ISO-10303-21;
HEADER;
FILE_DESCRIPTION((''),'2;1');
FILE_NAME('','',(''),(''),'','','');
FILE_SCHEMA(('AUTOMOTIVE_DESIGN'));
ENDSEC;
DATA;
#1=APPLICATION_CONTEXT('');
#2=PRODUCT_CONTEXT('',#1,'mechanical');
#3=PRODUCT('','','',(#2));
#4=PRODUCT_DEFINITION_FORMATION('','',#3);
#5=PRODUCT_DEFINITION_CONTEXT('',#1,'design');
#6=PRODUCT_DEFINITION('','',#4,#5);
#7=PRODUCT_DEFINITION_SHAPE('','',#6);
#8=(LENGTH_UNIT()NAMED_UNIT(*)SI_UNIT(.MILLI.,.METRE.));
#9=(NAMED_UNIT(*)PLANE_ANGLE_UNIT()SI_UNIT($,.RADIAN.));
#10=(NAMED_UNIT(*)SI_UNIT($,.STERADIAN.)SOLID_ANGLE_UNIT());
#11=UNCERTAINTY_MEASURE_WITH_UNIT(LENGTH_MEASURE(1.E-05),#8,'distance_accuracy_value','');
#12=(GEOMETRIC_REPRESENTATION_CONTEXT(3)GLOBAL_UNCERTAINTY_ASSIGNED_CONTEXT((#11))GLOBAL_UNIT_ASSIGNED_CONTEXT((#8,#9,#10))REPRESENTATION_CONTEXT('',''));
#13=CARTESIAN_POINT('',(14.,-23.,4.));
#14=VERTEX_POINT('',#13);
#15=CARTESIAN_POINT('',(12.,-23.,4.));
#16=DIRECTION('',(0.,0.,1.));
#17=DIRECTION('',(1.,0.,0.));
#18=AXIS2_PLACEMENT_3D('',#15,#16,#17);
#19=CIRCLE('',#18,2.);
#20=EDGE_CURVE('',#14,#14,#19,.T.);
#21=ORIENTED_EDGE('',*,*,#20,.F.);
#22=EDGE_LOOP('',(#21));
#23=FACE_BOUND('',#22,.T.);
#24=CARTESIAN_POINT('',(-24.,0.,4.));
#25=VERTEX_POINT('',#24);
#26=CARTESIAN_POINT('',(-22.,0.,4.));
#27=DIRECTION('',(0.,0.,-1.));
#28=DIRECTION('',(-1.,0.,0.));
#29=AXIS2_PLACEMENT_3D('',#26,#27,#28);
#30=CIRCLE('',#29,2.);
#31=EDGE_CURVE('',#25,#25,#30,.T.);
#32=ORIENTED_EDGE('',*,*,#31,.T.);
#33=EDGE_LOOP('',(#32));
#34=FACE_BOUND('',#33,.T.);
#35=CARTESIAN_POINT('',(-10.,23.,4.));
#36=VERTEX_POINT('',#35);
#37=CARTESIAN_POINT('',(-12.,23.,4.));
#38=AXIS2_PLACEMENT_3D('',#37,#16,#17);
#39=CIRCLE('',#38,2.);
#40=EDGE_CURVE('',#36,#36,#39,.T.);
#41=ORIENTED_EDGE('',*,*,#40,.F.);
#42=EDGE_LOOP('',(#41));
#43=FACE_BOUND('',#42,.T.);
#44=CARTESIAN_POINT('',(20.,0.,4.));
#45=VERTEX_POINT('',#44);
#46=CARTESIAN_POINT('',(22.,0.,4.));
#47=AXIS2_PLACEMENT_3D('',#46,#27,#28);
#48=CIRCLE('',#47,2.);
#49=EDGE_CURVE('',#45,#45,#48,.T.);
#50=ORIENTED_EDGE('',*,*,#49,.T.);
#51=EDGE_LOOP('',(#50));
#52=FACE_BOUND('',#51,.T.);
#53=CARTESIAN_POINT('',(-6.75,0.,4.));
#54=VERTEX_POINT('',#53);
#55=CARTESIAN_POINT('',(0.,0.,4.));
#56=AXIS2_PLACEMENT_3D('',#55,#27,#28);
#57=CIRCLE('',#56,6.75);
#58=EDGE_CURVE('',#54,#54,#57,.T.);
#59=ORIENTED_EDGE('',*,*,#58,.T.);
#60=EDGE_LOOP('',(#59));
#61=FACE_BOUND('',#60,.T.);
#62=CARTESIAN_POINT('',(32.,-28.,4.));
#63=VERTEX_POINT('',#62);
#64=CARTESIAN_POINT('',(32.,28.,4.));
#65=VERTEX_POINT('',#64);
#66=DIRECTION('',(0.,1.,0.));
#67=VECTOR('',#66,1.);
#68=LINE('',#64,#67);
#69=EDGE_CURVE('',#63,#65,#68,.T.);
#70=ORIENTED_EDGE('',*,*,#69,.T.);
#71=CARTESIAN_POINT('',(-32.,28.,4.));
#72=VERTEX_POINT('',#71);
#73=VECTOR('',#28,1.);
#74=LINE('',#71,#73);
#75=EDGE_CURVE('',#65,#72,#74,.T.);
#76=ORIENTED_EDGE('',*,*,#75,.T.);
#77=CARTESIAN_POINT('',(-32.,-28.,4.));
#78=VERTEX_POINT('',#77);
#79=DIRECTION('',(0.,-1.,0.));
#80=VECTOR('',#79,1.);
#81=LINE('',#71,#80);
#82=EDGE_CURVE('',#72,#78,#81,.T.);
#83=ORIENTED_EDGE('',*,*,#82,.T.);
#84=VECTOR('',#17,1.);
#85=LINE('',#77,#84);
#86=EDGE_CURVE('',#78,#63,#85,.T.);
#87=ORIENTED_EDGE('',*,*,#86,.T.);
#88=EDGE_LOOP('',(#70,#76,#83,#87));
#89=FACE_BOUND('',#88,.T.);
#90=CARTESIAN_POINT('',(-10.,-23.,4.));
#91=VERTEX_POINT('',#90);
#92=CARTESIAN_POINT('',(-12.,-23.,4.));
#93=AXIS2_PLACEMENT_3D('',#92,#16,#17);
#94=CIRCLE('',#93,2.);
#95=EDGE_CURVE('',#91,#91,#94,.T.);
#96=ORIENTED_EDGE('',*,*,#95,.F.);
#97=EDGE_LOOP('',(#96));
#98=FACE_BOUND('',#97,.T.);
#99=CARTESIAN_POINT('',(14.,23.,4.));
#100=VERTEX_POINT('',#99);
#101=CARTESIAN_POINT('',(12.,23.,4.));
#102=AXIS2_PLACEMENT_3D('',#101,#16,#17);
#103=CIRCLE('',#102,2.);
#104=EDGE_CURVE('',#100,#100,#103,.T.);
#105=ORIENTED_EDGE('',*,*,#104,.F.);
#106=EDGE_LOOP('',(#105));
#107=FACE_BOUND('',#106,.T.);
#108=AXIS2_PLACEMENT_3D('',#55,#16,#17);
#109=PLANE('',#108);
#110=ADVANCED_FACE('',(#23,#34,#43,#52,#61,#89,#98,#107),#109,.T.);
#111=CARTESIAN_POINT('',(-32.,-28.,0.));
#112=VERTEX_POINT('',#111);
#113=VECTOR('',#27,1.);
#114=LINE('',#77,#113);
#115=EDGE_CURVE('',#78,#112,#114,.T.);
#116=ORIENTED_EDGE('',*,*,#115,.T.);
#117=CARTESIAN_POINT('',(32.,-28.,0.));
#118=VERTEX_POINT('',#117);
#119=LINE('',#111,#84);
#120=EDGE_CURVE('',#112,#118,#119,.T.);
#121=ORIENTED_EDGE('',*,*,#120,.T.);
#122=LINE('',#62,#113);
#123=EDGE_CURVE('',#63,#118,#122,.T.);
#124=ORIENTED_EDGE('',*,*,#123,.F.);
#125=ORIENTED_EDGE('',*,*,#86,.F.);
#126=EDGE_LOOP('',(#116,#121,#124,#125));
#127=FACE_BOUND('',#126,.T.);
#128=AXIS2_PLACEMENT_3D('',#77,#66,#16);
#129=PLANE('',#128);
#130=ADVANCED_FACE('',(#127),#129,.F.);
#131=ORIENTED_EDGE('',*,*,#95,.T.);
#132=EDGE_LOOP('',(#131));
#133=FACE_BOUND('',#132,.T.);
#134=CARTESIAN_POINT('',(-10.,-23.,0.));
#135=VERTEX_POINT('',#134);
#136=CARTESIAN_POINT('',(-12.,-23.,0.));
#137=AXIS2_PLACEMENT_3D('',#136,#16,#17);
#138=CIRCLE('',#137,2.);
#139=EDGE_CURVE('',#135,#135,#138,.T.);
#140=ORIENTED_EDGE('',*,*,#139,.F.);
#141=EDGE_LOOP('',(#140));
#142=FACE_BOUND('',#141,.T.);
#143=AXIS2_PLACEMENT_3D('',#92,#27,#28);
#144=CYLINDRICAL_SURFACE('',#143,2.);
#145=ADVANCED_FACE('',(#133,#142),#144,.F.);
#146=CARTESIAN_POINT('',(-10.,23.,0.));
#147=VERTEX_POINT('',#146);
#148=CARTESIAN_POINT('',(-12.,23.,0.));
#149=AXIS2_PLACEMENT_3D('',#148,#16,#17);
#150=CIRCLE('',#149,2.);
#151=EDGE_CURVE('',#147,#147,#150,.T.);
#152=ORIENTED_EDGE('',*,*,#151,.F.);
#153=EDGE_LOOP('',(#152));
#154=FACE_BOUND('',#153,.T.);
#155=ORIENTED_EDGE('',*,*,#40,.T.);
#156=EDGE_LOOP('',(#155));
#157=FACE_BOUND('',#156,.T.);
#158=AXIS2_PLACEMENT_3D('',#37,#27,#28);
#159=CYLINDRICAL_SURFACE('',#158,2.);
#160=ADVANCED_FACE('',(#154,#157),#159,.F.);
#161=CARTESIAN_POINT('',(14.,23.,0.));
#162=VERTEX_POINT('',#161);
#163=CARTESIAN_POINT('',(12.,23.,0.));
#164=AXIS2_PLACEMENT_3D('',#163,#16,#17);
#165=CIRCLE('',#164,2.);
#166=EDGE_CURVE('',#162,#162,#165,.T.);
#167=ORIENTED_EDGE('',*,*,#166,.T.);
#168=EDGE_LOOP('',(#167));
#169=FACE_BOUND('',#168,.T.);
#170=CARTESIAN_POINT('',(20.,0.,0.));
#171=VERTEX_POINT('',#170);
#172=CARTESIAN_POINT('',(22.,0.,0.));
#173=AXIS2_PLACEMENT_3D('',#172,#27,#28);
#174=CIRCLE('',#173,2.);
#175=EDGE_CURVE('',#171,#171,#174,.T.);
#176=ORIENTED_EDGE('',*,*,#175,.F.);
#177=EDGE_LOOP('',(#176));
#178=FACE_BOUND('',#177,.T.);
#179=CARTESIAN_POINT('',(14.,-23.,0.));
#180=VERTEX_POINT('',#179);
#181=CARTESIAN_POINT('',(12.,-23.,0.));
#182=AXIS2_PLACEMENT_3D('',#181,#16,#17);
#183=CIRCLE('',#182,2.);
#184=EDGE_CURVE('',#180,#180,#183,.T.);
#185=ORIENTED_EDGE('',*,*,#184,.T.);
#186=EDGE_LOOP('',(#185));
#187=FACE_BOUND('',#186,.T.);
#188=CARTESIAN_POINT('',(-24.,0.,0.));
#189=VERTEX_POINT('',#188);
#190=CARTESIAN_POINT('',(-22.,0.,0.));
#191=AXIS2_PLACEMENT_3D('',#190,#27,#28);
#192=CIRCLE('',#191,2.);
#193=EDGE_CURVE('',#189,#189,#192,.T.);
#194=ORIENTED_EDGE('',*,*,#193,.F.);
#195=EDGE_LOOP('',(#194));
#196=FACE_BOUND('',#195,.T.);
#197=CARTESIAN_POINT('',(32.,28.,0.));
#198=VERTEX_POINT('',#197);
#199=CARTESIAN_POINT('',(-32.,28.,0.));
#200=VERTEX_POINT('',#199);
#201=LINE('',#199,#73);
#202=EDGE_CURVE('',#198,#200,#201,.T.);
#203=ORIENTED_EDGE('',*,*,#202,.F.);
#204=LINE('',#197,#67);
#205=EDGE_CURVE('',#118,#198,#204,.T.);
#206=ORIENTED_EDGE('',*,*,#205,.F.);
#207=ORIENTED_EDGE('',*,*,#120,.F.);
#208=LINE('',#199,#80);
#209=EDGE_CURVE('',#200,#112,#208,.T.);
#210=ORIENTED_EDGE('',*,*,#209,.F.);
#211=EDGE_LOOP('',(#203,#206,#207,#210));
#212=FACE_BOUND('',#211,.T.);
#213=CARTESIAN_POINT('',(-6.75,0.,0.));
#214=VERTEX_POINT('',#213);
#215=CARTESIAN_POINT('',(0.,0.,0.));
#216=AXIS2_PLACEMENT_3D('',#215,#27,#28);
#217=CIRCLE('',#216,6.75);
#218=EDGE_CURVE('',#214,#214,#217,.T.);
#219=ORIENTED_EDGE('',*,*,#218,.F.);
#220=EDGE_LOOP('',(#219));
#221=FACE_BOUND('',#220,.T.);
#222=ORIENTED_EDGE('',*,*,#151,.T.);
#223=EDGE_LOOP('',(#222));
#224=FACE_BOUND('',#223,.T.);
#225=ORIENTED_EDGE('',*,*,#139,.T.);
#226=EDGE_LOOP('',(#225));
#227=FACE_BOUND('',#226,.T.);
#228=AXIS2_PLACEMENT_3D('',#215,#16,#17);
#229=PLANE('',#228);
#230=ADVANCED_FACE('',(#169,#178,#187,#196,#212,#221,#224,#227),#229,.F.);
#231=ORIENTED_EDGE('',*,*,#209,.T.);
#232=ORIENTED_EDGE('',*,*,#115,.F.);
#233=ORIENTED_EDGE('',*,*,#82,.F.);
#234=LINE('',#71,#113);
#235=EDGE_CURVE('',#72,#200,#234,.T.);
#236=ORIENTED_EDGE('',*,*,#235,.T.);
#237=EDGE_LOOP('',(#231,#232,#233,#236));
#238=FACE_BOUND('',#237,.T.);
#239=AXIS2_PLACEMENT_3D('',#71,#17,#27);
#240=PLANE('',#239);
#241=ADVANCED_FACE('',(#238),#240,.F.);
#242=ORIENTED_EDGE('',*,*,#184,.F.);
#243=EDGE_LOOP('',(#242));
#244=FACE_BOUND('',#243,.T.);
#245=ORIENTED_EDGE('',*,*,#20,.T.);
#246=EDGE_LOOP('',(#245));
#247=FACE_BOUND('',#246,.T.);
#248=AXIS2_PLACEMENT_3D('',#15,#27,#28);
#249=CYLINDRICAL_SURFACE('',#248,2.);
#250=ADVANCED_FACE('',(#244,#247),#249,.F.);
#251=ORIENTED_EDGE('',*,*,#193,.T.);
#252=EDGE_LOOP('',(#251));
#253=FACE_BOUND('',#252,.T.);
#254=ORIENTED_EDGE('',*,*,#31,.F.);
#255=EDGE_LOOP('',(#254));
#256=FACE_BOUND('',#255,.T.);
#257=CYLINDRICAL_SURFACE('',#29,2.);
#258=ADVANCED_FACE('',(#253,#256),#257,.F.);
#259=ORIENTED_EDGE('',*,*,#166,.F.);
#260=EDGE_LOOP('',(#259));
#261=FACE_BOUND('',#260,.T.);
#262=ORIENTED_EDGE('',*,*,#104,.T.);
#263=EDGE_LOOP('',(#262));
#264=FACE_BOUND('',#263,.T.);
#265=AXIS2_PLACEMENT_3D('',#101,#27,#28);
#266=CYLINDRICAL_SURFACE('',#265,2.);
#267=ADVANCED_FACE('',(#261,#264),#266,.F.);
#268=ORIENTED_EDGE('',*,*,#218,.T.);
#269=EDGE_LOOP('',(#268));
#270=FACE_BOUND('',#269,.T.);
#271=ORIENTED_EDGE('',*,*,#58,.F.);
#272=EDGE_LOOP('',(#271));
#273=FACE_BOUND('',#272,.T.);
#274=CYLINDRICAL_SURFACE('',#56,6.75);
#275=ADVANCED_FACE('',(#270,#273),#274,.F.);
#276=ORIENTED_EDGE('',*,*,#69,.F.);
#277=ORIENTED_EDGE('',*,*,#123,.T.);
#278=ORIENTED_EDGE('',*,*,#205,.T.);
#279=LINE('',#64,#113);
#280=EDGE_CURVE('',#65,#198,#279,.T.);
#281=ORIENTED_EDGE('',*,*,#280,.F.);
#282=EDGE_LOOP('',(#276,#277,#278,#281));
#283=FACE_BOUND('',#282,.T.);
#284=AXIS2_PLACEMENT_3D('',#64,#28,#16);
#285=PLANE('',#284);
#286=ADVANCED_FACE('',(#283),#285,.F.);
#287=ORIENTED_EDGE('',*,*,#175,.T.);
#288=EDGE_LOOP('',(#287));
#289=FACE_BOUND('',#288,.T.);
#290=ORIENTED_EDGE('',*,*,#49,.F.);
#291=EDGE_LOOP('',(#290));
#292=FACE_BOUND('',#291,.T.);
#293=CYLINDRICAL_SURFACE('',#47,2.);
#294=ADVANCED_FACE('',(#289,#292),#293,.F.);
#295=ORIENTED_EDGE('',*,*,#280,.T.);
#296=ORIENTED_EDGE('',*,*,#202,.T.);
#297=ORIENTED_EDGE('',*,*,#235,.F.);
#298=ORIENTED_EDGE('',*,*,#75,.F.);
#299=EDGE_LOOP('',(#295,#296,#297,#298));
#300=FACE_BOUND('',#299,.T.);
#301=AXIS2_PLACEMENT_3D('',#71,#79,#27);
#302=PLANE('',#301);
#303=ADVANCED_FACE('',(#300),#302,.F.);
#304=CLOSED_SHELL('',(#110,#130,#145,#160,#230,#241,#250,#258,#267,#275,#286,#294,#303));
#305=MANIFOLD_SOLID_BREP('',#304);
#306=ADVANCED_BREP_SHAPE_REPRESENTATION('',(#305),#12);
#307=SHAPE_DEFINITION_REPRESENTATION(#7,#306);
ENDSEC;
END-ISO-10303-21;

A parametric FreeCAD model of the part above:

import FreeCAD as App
import Part
import Sketcher
Q = App.Units.Quantity

doc = App.newDocument("Part")
body = doc.addObject("PartDesign::Body", "Body")

sketch1 = doc.addObject("Sketcher::SketchObject", "Sketch")
body.addObject(sketch1)
sketch1.AttachmentSupport = (doc.XY_Plane, [""])
sketch1.MapMode = "FlatFace"
sketch1.addGeometry([
    Part.LineSegment(App.Vector(-32, 28, 0), App.Vector(-32, -28, 0)),
    Part.LineSegment(App.Vector(-32, -28, 0), App.Vector(32, -28, 0)),
    Part.LineSegment(App.Vector(32, -28, 0), App.Vector(32, 28, 0)),
    Part.LineSegment(App.Vector(32, 28, 0), App.Vector(-32, 28, 0)),
    Part.Circle(App.Vector(-12, -23, 0), App.Vector(0, 0, 1), 2),
    Part.Circle(App.Vector(12, -23, 0), App.Vector(0, 0, 1), 2),
    Part.Circle(App.Vector(-12, 23, 0), App.Vector(0, 0, 1), 2),
    Part.Circle(App.Vector(12, 23, 0), App.Vector(0, 0, 1), 2),
], False)
sketch1.addConstraint([
    Sketcher.Constraint("Coincident", 0, 2, 1, 1),
    Sketcher.Constraint("Coincident", 1, 2, 2, 1),
    Sketcher.Constraint("Coincident", 2, 2, 3, 1),
    Sketcher.Constraint("Coincident", 3, 2, 0, 1),
    Sketcher.Constraint("Vertical", 0),
    Sketcher.Constraint("Horizontal", 1),
    Sketcher.Constraint("Vertical", 2),
    Sketcher.Constraint("Horizontal", 3),
    Sketcher.Constraint("Equal", 4, 5),
    Sketcher.Constraint("Equal", 5, 6),
    Sketcher.Constraint("Equal", 6, 7),
    Sketcher.Constraint("Symmetric", 5, 3, 6, 3, -1, 1),
    Sketcher.Constraint("Symmetric", 4, 3, 7, 3, -1, 1),
    Sketcher.Constraint("Symmetric", 0, 2, 2, 2, -1, 1),
    Sketcher.Constraint("Symmetric", 4, 3, 5, 3, -2),
    Sketcher.Constraint("Diameter", 4, Q("4 mm")),
    Sketcher.Constraint("DistanceX", 1, 1, 1, 2, Q("64 mm")),
    Sketcher.Constraint("DistanceY", 0, 2, 0, 1, Q("56 mm")),
    Sketcher.Constraint("DistanceX", 4, 3, -1, 1, Q("12 mm")),
    Sketcher.Constraint("DistanceY", 4, 3, -1, 1, Q("23 mm")),
])
pad1 = doc.addObject("PartDesign::Pad", "Pad")
body.addObject(pad1)
pad1.Profile = sketch1
pad1.Length = 4

sketch2 = doc.addObject("Sketcher::SketchObject", "Sketch001")
body.addObject(sketch2)
sketch2.AttachmentSupport = (doc.XY_Plane, [""])
sketch2.MapMode = "FlatFace"
sketch2.addGeometry(Part.Circle(App.Vector(0, 0, 0), App.Vector(0, 0, 1), 7), False)
sketch2.addConstraint([
    Sketcher.Constraint("Coincident", 0, 3, -1, 1),
    Sketcher.Constraint("Diameter", 0, Q("13.5 mm")),
])
pocket1 = doc.addObject("PartDesign::Pocket", "Pocket")
body.addObject(pocket1)
pocket1.Profile = sketch2
pocket1.Length = 4
pocket1.Reversed = True

sketch3 = doc.addObject("Sketcher::SketchObject", "Sketch002")
body.addObject(sketch3)
sketch3.AttachmentSupport = (doc.XY_Plane, [""])
sketch3.MapMode = "FlatFace"
sketch3.addGeometry([
    Part.Circle(App.Vector(22, 0, 0), App.Vector(0, 0, 1), 2),
    Part.Circle(App.Vector(-22, 0, 0), App.Vector(0, 0, 1), 2),
], False)
sketch3.addConstraint([
    Sketcher.Constraint("Equal", 0, 1),
    Sketcher.Constraint("Symmetric", 0, 3, 1, 3, -1, 1),
    Sketcher.Constraint("PointOnObject", 0, 3, -1),
    Sketcher.Constraint("Diameter", 0, Q("4 mm")),
    Sketcher.Constraint("DistanceX", -1, 1, 0, 3, Q("22 mm")),
])
pocket2 = doc.addObject("PartDesign::Pocket", "Pocket001")
body.addObject(pocket2)
pocket2.Profile = sketch3
pocket2.Length = 4
pocket2.Reversed = True

doc.recompute()
